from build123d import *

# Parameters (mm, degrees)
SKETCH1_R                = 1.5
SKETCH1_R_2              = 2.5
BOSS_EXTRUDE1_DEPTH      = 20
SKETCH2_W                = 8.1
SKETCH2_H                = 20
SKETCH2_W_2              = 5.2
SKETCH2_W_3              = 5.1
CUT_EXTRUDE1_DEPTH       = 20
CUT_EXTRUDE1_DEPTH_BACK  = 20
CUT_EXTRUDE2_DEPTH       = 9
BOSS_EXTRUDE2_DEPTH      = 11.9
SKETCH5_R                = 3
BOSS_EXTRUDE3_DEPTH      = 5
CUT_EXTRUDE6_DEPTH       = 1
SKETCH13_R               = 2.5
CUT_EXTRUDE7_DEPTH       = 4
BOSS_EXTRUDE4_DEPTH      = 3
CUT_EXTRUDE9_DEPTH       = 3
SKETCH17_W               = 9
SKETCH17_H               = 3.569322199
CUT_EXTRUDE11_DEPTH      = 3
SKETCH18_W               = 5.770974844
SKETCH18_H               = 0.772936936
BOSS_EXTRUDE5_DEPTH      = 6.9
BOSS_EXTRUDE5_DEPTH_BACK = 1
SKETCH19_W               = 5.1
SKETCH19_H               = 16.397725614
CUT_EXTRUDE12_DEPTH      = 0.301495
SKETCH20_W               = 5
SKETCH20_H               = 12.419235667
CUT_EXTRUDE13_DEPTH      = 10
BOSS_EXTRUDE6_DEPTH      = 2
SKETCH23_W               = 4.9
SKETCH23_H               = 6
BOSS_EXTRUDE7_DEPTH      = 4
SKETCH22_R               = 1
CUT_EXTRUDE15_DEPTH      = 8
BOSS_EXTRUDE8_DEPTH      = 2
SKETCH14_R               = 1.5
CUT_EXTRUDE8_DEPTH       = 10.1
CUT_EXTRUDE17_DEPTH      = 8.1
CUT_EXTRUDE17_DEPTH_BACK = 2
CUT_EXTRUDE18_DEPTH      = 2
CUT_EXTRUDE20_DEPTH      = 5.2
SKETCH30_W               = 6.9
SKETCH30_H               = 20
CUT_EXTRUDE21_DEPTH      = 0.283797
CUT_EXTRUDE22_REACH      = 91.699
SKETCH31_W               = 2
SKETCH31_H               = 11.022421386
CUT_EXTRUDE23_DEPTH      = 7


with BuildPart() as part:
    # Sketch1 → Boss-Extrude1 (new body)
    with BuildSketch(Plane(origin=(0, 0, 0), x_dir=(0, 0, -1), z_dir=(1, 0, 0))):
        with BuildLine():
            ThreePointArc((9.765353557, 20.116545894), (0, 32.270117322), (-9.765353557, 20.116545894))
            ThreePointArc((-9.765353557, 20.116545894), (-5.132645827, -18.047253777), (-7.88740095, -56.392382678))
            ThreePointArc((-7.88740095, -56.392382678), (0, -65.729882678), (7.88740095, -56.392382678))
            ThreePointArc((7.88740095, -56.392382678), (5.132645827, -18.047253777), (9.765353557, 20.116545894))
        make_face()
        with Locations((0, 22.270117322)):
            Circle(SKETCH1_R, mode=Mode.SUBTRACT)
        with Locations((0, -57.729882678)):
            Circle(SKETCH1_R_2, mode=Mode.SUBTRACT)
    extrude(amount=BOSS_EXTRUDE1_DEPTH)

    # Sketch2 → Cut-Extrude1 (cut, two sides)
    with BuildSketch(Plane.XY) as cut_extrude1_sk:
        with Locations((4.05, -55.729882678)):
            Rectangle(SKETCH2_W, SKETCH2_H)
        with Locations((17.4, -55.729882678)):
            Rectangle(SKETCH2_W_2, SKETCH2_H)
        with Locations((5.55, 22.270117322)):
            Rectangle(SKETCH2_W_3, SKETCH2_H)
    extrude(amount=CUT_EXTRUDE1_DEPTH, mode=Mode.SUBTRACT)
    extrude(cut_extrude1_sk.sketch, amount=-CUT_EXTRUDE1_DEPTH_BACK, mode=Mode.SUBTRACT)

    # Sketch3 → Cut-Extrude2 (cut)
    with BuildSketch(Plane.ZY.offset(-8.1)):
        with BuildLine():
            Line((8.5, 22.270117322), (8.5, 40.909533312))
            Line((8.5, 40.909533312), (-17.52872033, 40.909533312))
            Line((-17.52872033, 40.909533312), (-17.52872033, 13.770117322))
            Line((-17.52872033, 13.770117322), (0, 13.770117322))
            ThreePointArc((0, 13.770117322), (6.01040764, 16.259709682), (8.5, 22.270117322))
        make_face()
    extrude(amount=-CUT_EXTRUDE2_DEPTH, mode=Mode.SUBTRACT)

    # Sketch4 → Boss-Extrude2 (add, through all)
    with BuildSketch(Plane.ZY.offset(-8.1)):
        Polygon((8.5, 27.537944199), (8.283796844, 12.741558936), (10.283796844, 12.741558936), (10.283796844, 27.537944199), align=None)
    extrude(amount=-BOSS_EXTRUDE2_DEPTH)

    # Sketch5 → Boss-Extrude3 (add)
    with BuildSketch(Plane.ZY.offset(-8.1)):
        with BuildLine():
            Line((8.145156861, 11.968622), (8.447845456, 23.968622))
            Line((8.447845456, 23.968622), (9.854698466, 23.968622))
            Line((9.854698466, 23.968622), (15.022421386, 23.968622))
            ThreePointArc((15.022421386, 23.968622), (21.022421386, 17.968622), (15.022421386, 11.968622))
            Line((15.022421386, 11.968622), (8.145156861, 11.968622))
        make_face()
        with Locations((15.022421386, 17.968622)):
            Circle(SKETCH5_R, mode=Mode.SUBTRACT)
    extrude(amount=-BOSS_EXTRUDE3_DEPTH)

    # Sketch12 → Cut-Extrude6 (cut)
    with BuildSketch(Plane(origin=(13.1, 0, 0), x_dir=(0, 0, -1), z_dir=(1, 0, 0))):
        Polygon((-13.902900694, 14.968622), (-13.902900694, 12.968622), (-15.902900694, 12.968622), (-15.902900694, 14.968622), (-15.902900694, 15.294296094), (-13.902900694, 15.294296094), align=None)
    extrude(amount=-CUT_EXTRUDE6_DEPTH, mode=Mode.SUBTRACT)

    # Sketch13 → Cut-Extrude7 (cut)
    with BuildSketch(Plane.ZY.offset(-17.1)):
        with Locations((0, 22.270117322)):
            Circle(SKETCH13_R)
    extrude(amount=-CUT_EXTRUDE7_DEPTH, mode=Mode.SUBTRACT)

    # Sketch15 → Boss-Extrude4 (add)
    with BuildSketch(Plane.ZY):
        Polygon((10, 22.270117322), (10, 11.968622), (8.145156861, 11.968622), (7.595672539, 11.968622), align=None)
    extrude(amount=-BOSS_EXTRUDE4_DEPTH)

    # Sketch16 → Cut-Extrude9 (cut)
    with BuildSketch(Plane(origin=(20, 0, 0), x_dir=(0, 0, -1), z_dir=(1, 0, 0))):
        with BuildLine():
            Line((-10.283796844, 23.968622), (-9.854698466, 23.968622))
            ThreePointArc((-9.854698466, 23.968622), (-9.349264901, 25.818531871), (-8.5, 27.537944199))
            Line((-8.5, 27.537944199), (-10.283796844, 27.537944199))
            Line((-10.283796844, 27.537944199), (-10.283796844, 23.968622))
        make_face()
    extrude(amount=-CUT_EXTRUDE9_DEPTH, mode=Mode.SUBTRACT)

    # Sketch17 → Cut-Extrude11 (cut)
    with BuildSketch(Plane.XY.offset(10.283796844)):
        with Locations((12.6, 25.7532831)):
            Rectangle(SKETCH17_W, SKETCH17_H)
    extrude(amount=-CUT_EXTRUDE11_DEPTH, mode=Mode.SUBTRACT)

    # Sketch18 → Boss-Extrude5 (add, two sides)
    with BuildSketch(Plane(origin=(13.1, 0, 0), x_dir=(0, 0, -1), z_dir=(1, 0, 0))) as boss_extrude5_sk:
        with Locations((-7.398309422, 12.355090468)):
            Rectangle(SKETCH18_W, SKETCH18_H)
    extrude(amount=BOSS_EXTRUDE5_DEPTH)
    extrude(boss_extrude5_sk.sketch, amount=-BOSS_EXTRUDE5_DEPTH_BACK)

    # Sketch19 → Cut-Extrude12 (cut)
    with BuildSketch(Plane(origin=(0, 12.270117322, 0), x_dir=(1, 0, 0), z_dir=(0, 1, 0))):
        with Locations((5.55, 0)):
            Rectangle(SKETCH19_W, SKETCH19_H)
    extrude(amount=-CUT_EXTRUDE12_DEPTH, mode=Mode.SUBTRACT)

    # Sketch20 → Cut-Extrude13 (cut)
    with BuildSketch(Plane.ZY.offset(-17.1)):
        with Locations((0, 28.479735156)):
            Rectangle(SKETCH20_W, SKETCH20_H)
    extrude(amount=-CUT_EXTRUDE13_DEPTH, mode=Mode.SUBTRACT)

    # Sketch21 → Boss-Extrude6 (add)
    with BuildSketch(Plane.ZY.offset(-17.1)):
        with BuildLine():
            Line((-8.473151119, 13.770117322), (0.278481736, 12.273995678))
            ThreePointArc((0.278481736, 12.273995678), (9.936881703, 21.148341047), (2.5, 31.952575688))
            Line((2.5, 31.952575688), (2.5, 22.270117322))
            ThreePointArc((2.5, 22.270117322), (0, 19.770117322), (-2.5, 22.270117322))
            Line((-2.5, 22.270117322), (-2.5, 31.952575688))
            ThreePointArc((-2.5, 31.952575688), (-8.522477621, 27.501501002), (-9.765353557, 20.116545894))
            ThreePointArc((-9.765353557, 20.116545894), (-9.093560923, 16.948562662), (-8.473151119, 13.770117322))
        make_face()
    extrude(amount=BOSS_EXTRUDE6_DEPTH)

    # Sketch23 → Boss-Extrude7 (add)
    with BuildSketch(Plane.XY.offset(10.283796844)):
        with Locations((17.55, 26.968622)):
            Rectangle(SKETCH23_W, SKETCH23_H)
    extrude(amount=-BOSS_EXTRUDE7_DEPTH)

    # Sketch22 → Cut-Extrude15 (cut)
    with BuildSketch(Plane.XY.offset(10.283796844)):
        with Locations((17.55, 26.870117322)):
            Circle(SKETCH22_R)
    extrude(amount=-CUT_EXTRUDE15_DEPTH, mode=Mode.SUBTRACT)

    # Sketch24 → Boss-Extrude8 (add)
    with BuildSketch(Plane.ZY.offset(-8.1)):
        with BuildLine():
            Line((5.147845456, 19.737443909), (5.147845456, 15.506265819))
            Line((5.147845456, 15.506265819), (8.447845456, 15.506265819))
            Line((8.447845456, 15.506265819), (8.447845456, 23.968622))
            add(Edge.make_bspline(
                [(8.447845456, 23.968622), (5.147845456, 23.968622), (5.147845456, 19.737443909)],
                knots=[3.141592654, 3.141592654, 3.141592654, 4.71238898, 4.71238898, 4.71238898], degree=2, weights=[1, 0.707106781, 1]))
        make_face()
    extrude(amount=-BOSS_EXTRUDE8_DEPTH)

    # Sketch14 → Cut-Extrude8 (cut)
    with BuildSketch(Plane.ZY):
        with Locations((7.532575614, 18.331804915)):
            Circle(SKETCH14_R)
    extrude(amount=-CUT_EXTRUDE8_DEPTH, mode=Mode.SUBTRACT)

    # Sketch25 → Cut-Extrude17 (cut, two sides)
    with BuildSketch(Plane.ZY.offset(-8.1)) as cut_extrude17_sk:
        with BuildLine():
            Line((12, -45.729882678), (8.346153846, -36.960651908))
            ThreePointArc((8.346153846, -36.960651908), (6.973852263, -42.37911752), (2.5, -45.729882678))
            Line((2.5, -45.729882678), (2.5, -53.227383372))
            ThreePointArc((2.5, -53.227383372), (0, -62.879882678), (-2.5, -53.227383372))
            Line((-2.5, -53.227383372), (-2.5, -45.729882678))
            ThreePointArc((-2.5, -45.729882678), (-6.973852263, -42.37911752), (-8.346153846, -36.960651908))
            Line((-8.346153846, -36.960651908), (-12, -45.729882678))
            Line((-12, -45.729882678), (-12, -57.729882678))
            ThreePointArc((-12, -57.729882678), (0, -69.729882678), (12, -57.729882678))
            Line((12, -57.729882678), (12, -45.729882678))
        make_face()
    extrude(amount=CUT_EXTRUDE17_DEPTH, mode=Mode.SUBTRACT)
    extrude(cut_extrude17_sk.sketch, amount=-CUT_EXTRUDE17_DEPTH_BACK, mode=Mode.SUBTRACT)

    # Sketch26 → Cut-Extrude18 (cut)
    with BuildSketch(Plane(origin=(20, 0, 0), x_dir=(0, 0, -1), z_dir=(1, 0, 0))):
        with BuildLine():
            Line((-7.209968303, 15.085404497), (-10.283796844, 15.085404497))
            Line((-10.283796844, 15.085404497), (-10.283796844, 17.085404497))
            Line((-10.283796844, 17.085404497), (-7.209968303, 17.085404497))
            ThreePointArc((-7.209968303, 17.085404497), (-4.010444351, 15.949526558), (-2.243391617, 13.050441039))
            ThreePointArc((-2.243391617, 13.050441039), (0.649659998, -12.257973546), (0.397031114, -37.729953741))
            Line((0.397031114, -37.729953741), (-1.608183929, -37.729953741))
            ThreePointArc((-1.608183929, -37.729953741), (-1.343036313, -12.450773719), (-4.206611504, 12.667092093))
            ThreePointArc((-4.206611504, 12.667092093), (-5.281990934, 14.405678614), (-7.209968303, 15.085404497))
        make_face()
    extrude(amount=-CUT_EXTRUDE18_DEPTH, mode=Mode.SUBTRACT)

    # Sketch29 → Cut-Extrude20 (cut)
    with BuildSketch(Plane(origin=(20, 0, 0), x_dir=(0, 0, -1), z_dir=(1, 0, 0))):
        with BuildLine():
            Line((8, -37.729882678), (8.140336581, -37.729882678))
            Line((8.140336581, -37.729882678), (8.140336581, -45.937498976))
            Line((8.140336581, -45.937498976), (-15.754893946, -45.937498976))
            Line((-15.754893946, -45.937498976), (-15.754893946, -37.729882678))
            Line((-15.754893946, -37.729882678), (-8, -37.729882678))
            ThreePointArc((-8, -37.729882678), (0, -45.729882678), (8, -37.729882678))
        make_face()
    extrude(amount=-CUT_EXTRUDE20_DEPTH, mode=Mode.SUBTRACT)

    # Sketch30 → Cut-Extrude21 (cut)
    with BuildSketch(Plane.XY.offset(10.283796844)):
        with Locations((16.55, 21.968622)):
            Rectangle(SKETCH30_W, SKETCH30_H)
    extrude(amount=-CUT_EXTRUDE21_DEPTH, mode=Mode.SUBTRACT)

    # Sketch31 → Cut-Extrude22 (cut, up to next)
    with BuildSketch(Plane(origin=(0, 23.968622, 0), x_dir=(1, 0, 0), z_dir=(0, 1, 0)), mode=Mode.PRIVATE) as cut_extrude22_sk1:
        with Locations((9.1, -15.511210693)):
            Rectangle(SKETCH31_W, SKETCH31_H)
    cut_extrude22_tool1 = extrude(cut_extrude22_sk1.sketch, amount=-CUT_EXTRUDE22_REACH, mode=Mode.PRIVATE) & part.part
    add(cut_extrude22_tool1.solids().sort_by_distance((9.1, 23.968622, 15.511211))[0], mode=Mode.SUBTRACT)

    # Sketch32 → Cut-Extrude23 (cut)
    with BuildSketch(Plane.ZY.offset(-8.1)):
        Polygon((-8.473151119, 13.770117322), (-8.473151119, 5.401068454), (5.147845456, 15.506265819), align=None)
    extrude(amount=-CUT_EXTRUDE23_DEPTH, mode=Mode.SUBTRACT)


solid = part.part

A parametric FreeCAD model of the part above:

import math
import FreeCAD as App
import Part
import Sketcher

V = App.Vector
Q = App.Units.Quantity

doc = App.newDocument("Part")
body = doc.addObject("PartDesign::Body", "Body")

# Sketch on YZ plane
sketch1 = body.newObject("Sketcher::SketchObject", "Sketch")
sketch1.AttachmentSupport = (doc.getObject("YZ_Plane"), [""])
sketch1.MapMode = "FlatFace"
sketch1.addGeometry([
    Part.ArcOfCircle(Part.Circle(V(22.3, 0, 0), V(0, 0, 1), 10), math.radians(-102), math.radians(102)),  # 0
    Part.ArcOfCircle(Part.Circle(V(-23, 205.1, 0), V(0, 0, 1), 200), math.radians(-100), math.radians(-78)),  # 1
    Part.ArcOfCircle(Part.Circle(V(-57.7, 0, 0), V(0, 0, 1), 8), math.radians(80), math.radians(280)),  # 2
    Part.ArcOfCircle(Part.Circle(V(-23, -205.1, 0), V(0, 0, 1), 200), math.radians(78), math.radians(100)),  # 3
    Part.Circle(V(-57.7, 0, 0), V(0, 0, 1), 2.5),  # 4
    Part.Circle(V(22.3, 0, 0), V(0, 0, 1), 1.5),  # 5
], False)
sketch1.addConstraint([
    Sketcher.Constraint("Tangent", 0, 2, 1, 2),
    Sketcher.Constraint("Tangent", 1, 1, 2, 1),
    Sketcher.Constraint("Tangent", 2, 2, 3, 2),
    Sketcher.Constraint("Tangent", 3, 1, 0, 1),
    Sketcher.Constraint("Coincident", 4, 3, 2, 3),
    Sketcher.Constraint("Coincident", 5, 3, 0, 3),
    Sketcher.Constraint("Equal", 1, 3),
    Sketcher.Constraint("Symmetric", 1, 3, 3, 3, -1),
    Sketcher.Constraint("Diameter", 4, Q("5 mm")),
    Sketcher.Constraint("Diameter", 5, Q("3 mm")),
    Sketcher.Constraint("Radius", 0, Q("10 mm")),
    Sketcher.Constraint("Radius", 1, Q("200 mm")),
    Sketcher.Constraint("Radius", 2, Q("8 mm")),
    Sketcher.Constraint("DistanceX", 2, 3, 0, 3, Q("80 mm")),
    Sketcher.Constraint("DistanceX", -1, 1, 0, 3, Q("22.270117 mm")),
])
pad1 = body.newObject("PartDesign::Pad", "Pad")
pad1.Profile = sketch1
pad1.Length = 20

# Sketch on XY plane
sketch2 = body.newObject("Sketcher::SketchObject", "Sketch001")
sketch2.AttachmentSupport = (doc.getObject("XY_Plane"), [""])
sketch2.MapMode = "FlatFace"
sketch2.addGeometry([
    Part.LineSegment(V(0, -46, 0), V(0, -66, 0)),  # 0
    Part.LineSegment(V(0, -66, 0), V(8, -66, 0)),  # 1
    Part.LineSegment(V(8, -66, 0), V(8, -46, 0)),  # 2
    Part.LineSegment(V(8, -46, 0), V(0, -46, 0)),  # 3
    Part.LineSegment(V(15, -46, 0), V(15, -66, 0)),  # 4
    Part.LineSegment(V(15, -66, 0), V(20, -66, 0)),  # 5
    Part.LineSegment(V(20, -66, 0), V(20, -46, 0)),  # 6
    Part.LineSegment(V(20, -46, 0), V(15, -46, 0)),  # 7
    Part.LineSegment(V(3, 32, 0), V(3, 12, 0)),  # 8
    Part.LineSegment(V(3, 12, 0), V(8, 12, 0)),  # 9
    Part.LineSegment(V(8, 12, 0), V(8, 32, 0)),  # 10
    Part.LineSegment(V(8, 32, 0), V(3, 32, 0)),  # 11
], False)
sketch2.addConstraint([
    Sketcher.Constraint("Coincident", 0, 2, 1, 1),
    Sketcher.Constraint("Coincident", 1, 2, 2, 1),
    Sketcher.Constraint("Coincident", 2, 2, 3, 1),
    Sketcher.Constraint("Coincident", 3, 2, 0, 1),
    Sketcher.Constraint("Coincident", 4, 2, 5, 1),
    Sketcher.Constraint("Coincident", 5, 2, 6, 1),
    Sketcher.Constraint("Coincident", 6, 2, 7, 1),
    Sketcher.Constraint("Coincident", 7, 2, 4, 1),
    Sketcher.Constraint("Coincident", 8, 2, 9, 1),
    Sketcher.Constraint("Coincident", 9, 2, 10, 1),
    Sketcher.Constraint("Coincident", 10, 2, 11, 1),
    Sketcher.Constraint("Coincident", 11, 2, 8, 1),
    Sketcher.Constraint("Vertical", 0),
    Sketcher.Constraint("Horizontal", 1),
    Sketcher.Constraint("Vertical", 2),
    Sketcher.Constraint("Horizontal", 3),
    Sketcher.Constraint("Vertical", 4),
    Sketcher.Constraint("Horizontal", 5),
    Sketcher.Constraint("Vertical", 6),
    Sketcher.Constraint("Horizontal", 7),
    Sketcher.Constraint("Vertical", 8),
    Sketcher.Constraint("Horizontal", 9),
    Sketcher.Constraint("Vertical", 10),
    Sketcher.Constraint("Horizontal", 11),
    Sketcher.Constraint("PointOnObject", 0, 2, -2),
    Sketcher.Constraint("Horizontal", 1, 2, 4, 2),
    Sketcher.Constraint("Horizontal", 3, 2, 6, 2),
    Sketcher.Constraint("Vertical", 2, 2, 9, 2),
    Sketcher.Constraint("Equal", 6, 8),
    Sketcher.Constraint("DistanceY", 0, 2, 0, 1, Q("20 mm")),
    Sketcher.Constraint("DistanceX", 1, 1, 1, 2, Q("8.1 mm")),
    Sketcher.Constraint("DistanceX", 5, 1, 5, 2, Q("5.2 mm")),
    Sketcher.Constraint("DistanceX", 9, 1, 9, 2, Q("5.1 mm")),
    Sketcher.Constraint("DistanceX", -1, 1, 5, 2, Q("20 mm")),
    Sketcher.Constraint("DistanceY", 3, 2, 8, 2, Q("58 mm")),
    Sketcher.Constraint("DistanceY", 0, 2, -1, 1, Q("65.729883 mm")),
])
pocket1 = body.newObject("PartDesign::Pocket", "Pocket")
pocket1.Profile = sketch2
pocket1.Type = "ThroughAll"
pocket1.Midplane = True

# Sketch on YZ plane
sketch3 = body.newObject("Sketcher::SketchObject", "Sketch002")
sketch3.AttachmentSupport = (doc.getObject("YZ_Plane"), [""])
sketch3.MapMode = "FlatFace"
sketch3.AttachmentOffset = App.Placement(V(0, 0, 8.1), App.Rotation())
sketch3.addGeometry([
    Part.LineSegment(V(22, 8, 0), V(41, 8, 0)),  # 0
    Part.LineSegment(V(41, 8, 0), V(41, -18, 0)),  # 1
    Part.LineSegment(V(41, -18, 0), V(14, -18, 0)),  # 2
    Part.LineSegment(V(14, -18, 0), V(14, 0, 0)),  # 3
    Part.ArcOfCircle(Part.Circle(V(22, 0, 0), V(0, 0, 1), 8), math.radians(90), math.radians(180)),  # 4
], False)
sketch3.addConstraint([
    Sketcher.Constraint("Coincident", 0, 2, 1, 1),
    Sketcher.Constraint("Coincident", 1, 2, 2, 1),
    Sketcher.Constraint("Coincident", 2, 2, 3, 1),
    Sketcher.Constraint("Tangent", 3, 2, 4, 2),
    Sketcher.Constraint("Tangent", 4, 1, 0, 1),
    Sketcher.Constraint("Horizontal", 0),
    Sketcher.Constraint("Vertical", 1),
    Sketcher.Constraint("Horizontal", 2),
    Sketcher.Constraint("Vertical", 3),
    Sketcher.Constraint("PointOnObject", 4, 3, -1),
    Sketcher.Constraint("Radius", 4, Q("8.5 mm")),
    Sketcher.Constraint("DistanceY", 1, 2, 1, 1, Q("26.02872 mm")),
    Sketcher.Constraint("DistanceX", 0, 1, 0, 2, Q("18.639416 mm")),
    Sketcher.Constraint("DistanceX", -1, 1, 4, 3, Q("22.270117 mm")),
])
pocket2 = body.newObject("PartDesign::Pocket", "Pocket001")
pocket2.Profile = sketch3
pocket2.Length = 9
pocket2.Reversed = True

# Sketch on YZ plane
sketch4 = body.newObject("Sketcher::SketchObject", "Sketch003")
sketch4.AttachmentSupport = (doc.getObject("YZ_Plane"), [""])
sketch4.MapMode = "FlatFace"
sketch4.AttachmentOffset = App.Placement(V(0, 0, 8.1), App.Rotation())
sketch4.addGeometry([
    Part.LineSegment(V(27.5, 8.5, 0), V(12.7, 8.3, 0)),
    Part.LineSegment(V(12.7, 8.3, 0), V(12.7, 10.3, 0)),
    Part.LineSegment(V(12.7, 10.3, 0), V(27.5, 10.3, 0)),
    Part.LineSegment(V(27.5, 10.3, 0), V(27.5, 8.5, 0)),
], False)
sketch4.addConstraint([
    Sketcher.Constraint("Coincident", 0, 2, 1, 1),
    Sketcher.Constraint("Coincident", 1, 2, 2, 1),
    Sketcher.Constraint("Coincident", 2, 2, 3, 1),
    Sketcher.Constraint("Coincident", 3, 2, 0, 1),
    Sketcher.Constraint("Vertical", 1),
    Sketcher.Constraint("Horizontal", 2),
    Sketcher.Constraint("Vertical", 3),
    Sketcher.Constraint("DistanceY", 1, 1, 1, 2, Q("2 mm")),
    Sketcher.Constraint("DistanceY", -1, 1, 3, 2, Q("8.5 mm")),
    Sketcher.Constraint("DistanceX", 2, 1, 2, 2, Q("14.796385 mm")),
    Sketcher.Constraint("DistanceY", 3, 2, 3, 1, Q("1.783797 mm")),
    Sketcher.Constraint("DistanceX", -1, 1, 0, 2, Q("12.741559 mm")),
])
pad2 = body.newObject("PartDesign::Pad", "Pad001")
pad2.Profile = sketch4
pad2.Type = "UpToLast"

# Sketch on YZ plane
sketch5 = body.newObject("Sketcher::SketchObject", "Sketch004")
sketch5.AttachmentSupport = (doc.getObject("YZ_Plane"), [""])
sketch5.MapMode = "FlatFace"
sketch5.AttachmentOffset = App.Placement(V(0, 0, 8.1), App.Rotation())
sketch5.addGeometry([
    Part.LineSegment(V(24, 8.4, 0), V(12, 8.1, 0)),  # 0
    Part.LineSegment(V(12, 8.1, 0), V(12, 15, 0)),  # 1
    Part.ArcOfCircle(Part.Circle(V(18, 15, 0), V(0, 0, 1), 6), math.radians(0), math.radians(180)),  # 2
    Part.LineSegment(V(24, 15, 0), V(24, 8.4, 0)),  # 3
    Part.Circle(V(18, 15, 0), V(0, 0, 1), 3),  # 4
], False)
sketch5.addConstraint([
    Sketcher.Constraint("Coincident", 0, 2, 1, 1),
    Sketcher.Constraint("Tangent", 1, 2, 2, 2),
    Sketcher.Constraint("Tangent", 2, 1, 3, 1),
    Sketcher.Constraint("Coincident", 3, 2, 0, 1),
    Sketcher.Constraint("Vertical", 1),
    Sketcher.Constraint("Vertical", 3),
    Sketcher.Constraint("Coincident", 4, 3, 2, 3),
    Sketcher.Constraint("Diameter", 4, Q("6 mm")),
    Sketcher.Constraint("Radius", 2, Q("6 mm")),
    Sketcher.Constraint("DistanceY", 1, 1, 1, 2, Q("6.877265 mm")),
    Sketcher.Constraint("DistanceY", 3, 2, 3, 1, Q("6.574576 mm")),
    Sketcher.Constraint("DistanceX", -1, 1, 2, 3, Q("17.968622 mm")),
    Sketcher.Constraint("DistanceY", -1, 1, 2, 3, Q("15.022421 mm")),
])
pad3 = body.newObject("PartDesign::Pad", "Pad002")
pad3.Profile = sketch5
pad3.Length = 5

# Sketch on YZ plane
sketch6 = body.newObject("Sketcher::SketchObject", "Sketch005")
sketch6.AttachmentSupport = (doc.getObject("YZ_Plane"), [""])
sketch6.MapMode = "FlatFace"
sketch6.AttachmentOffset = App.Placement(V(0, 0, 13.1), App.Rotation())
sketch6.addGeometry([
    Part.LineSegment(V(13, 13.9, 0), V(15.3, 13.9, 0)),
    Part.LineSegment(V(15.3, 13.9, 0), V(15.3, 15.9, 0)),
    Part.LineSegment(V(15.3, 15.9, 0), V(13, 15.9, 0)),
    Part.LineSegment(V(13, 15.9, 0), V(13, 13.9, 0)),
], False)
sketch6.addConstraint([
    Sketcher.Constraint("Coincident", 0, 2, 1, 1),
    Sketcher.Constraint("Coincident", 1, 2, 2, 1),
    Sketcher.Constraint("Coincident", 2, 2, 3, 1),
    Sketcher.Constraint("Coincident", 3, 2, 0, 1),
    Sketcher.Constraint("Horizontal", 0),
    Sketcher.Constraint("Vertical", 1),
    Sketcher.Constraint("Horizontal", 2),
    Sketcher.Constraint("Vertical", 3),
    Sketcher.Constraint("DistanceY", 1, 1, 1, 2, Q("2 mm")),
    Sketcher.Constraint("DistanceY", -1, 1, 0, 2, Q("13.902901 mm")),
    Sketcher.Constraint("DistanceX", 0, 1, 0, 2, Q("2.325674 mm")),
    Sketcher.Constraint("DistanceX", -1, 1, 0, 2, Q("15.294296 mm")),
])
pocket3 = body.newObject("PartDesign::Pocket", "Pocket002")
pocket3.Profile = sketch6
pocket3.Length = 1

# Sketch on YZ plane
sketch7 = body.newObject("Sketcher::SketchObject", "Sketch006")
sketch7.AttachmentSupport = (doc.getObject("YZ_Plane"), [""])
sketch7.MapMode = "FlatFace"
sketch7.AttachmentOffset = App.Placement(V(0, 0, 17.1), App.Rotation())
sketch7.addGeometry(Part.Circle(V(22.3, 0, 0), V(0, 0, 1), 2.5), False)
sketch7.addConstraint([
    Sketcher.Constraint("PointOnObject", 0, 3, -1),
    Sketcher.Constraint("Diameter", 0, Q("5 mm")),
    Sketcher.Constraint("DistanceX", -1, 1, 0, 3, Q("22.270117 mm")),
])
pocket4 = body.newObject("PartDesign::Pocket", "Pocket003")
pocket4.Profile = sketch7
pocket4.Length = 4
pocket4.Reversed = True

# Sketch on YZ plane
sketch8 = body.newObject("Sketcher::SketchObject", "Sketch007")
sketch8.AttachmentSupport = (doc.getObject("YZ_Plane"), [""])
sketch8.MapMode = "FlatFace"
sketch8.addGeometry([
    Part.LineSegment(V(12, 10, 0), V(22.3, 10, 0)),
    Part.LineSegment(V(22.3, 10, 0), V(12, 7.6, 0)),
    Part.LineSegment(V(12, 7.6, 0), V(12, 10, 0)),
], False)
sketch8.addConstraint([
    Sketcher.Constraint("Coincident", 0, 2, 1, 1),
    Sketcher.Constraint("Coincident", 1, 2, 2, 1),
    Sketcher.Constraint("Coincident", 2, 2, 0, 1),
    Sketcher.Constraint("Horizontal", 0),
    Sketcher.Constraint("Vertical", 2),
    Sketcher.Constraint("DistanceY", -1, 1, 0, 2, Q("10 mm")),
    Sketcher.Constraint("DistanceX", 0, 1, 0, 2, Q("10.301495 mm")),
    Sketcher.Constraint("DistanceY", 2, 1, 2, 2, Q("2.404327 mm")),
    Sketcher.Constraint("DistanceX", -1, 1, 0, 2, Q("22.270117 mm")),
])
pad4 = body.newObject("PartDesign::Pad", "Pad003")
pad4.Profile = sketch8
pad4.Length = 3

# Sketch on YZ plane
sketch9 = body.newObject("Sketcher::SketchObject", "Sketch008")
sketch9.AttachmentSupport = (doc.getObject("YZ_Plane"), [""])
sketch9.MapMode = "FlatFace"
sketch9.AttachmentOffset = App.Placement(V(0, 0, 20), App.Rotation())
sketch9.addGeometry([
    Part.LineSegment(V(23.97, 10.28, 0), V(23.97, 9.85, 0)),
    Part.ArcOfCircle(Part.Circle(V(22.27, 0, 0), V(0, 0, 1), 10), math.radians(58), math.radians(80)),
    Part.LineSegment(V(27.54, 8.5, 0), V(27.54, 10.28, 0)),
    Part.LineSegment(V(27.54, 10.28, 0), V(23.97, 10.28, 0)),
], False)
sketch9.addConstraint([
    Sketcher.Constraint("Coincident", 0, 2, 1, 2),
    Sketcher.Constraint("Coincident", 1, 1, 2, 1),
    Sketcher.Constraint("Coincident", 2, 2, 3, 1),
    Sketcher.Constraint("Coincident", 3, 2, 0, 1),
    Sketcher.Constraint("Vertical", 0),
    Sketcher.Constraint("Vertical", 2),
    Sketcher.Constraint("Horizontal", 3),
    Sketcher.Constraint("PointOnObject", 1, 3, -1),
    Sketcher.Constraint("Radius", 1, Q("10 mm")),
    Sketcher.Constraint("DistanceY", -1, 1, 1, 1, Q("8.5 mm")),
    Sketcher.Constraint("DistanceY", 0, 2, 0, 1, Q("0.429098 mm")),
    Sketcher.Constraint("DistanceY", -1, 1, 0, 2, Q("9.854698 mm")),
    Sketcher.Constraint("DistanceX", -1, 1, 0, 2, Q("23.968622 mm")),
])
pocket5 = body.newObject("PartDesign::Pocket", "Pocket004")
pocket5.Profile = sketch9
pocket5.Length = 3

# Sketch on XY plane
sketch10 = body.newObject("Sketcher::SketchObject", "Sketch009")
sketch10.AttachmentSupport = (doc.getObject("XY_Plane"), [""])
sketch10.MapMode = "FlatFace"
sketch10.AttachmentOffset = App.Placement(V(0, 0, 10.283797), App.Rotation())
sketch10.addGeometry([
    Part.LineSegment(V(8.1, 27.5, 0), V(8.1, 24, 0)),
    Part.LineSegment(V(8.1, 24, 0), V(17.1, 24, 0)),
    Part.LineSegment(V(17.1, 24, 0), V(17.1, 27.5, 0)),
    Part.LineSegment(V(17.1, 27.5, 0), V(8.1, 27.5, 0)),
], False)
sketch10.addConstraint([
    Sketcher.Constraint("Coincident", 0, 2, 1, 1),
    Sketcher.Constraint("Coincident", 1, 2, 2, 1),
    Sketcher.Constraint("Coincident", 2, 2, 3, 1),
    Sketcher.Constraint("Coincident", 3, 2, 0, 1),
    Sketcher.Constraint("Vertical", 0),
    Sketcher.Constraint("Horizontal", 1),
    Sketcher.Constraint("Vertical", 2),
    Sketcher.Constraint("Horizontal", 3),
    Sketcher.Constraint("DistanceX", 1, 1, 1, 2, Q("9 mm")),
    Sketcher.Constraint("DistanceX", -1, 1, 0, 2, Q("8.1 mm")),
    Sketcher.Constraint("DistanceY", 0, 2, 0, 1, Q("3.569322 mm")),
    Sketcher.Constraint("DistanceY", -1, 1, 0, 2, Q("23.968622 mm")),
])
pocket6 = body.newObject("PartDesign::Pocket", "Pocket005")
pocket6.Profile = sketch10
pocket6.Length = 3

# Sketch on YZ plane
sketch11 = body.newObject("Sketcher::SketchObject", "Sketch010")
sketch11.AttachmentSupport = (doc.getObject("YZ_Plane"), [""])
sketch11.MapMode = "FlatFace"
sketch11.AttachmentOffset = App.Placement(V(0, 0, 13.1), App.Rotation())
sketch11.addGeometry([
    Part.LineSegment(V(12.7, 10.3, 0), V(12, 10.3, 0)),
    Part.LineSegment(V(12, 10.3, 0), V(12, 4.5, 0)),
    Part.LineSegment(V(12, 4.5, 0), V(12.7, 4.5, 0)),
    Part.LineSegment(V(12.7, 4.5, 0), V(12.7, 10.3, 0)),
], False)
sketch11.addConstraint([
    Sketcher.Constraint("Coincident", 0, 2, 1, 1),
    Sketcher.Constraint("Coincident", 1, 2, 2, 1),
    Sketcher.Constraint("Coincident", 2, 2, 3, 1),
    Sketcher.Constraint("Coincident", 3, 2, 0, 1),
    Sketcher.Constraint("Horizontal", 0),
    Sketcher.Constraint("Vertical", 1),
    Sketcher.Constraint("Horizontal", 2),
    Sketcher.Constraint("Vertical", 3),
    Sketcher.Constraint("DistanceX", 0, 2, 0, 1, Q("0.772937 mm")),
    Sketcher.Constraint("DistanceY", 1, 2, 1, 1, Q("5.770975 mm")),
    Sketcher.Constraint("DistanceX", -1, 1, 2, 2, Q("12.741559 mm")),
    Sketcher.Constraint("DistanceY", -1, 1, 0, 2, Q("10.283797 mm")),
])
pad5 = body.newObject("PartDesign::Pad", "Pad004")
pad5.Profile = sketch11
pad5.Type = "TwoLengths"
pad5.Length = 6.9
pad5.Length2 = 1

# Sketch on XZ plane
sketch12 = body.newObject("Sketcher::SketchObject", "Sketch011")
sketch12.AttachmentSupport = (doc.getObject("XZ_Plane"), [""])
sketch12.MapMode = "FlatFace"
sketch12.AttachmentOffset = App.Placement(V(0, 0, -12.270117), App.Rotation())
sketch12.addGeometry([
    Part.LineSegment(V(3, -8, 0), V(3, 8, 0)),
    Part.LineSegment(V(3, 8, 0), V(8, 8, 0)),
    Part.LineSegment(V(8, 8, 0), V(8, -8, 0)),
    Part.LineSegment(V(8, -8, 0), V(3, -8, 0)),
], False)
sketch12.addConstraint([
    Sketcher.Constraint("Coincident", 0, 2, 1, 1),
    Sketcher.Constraint("Coincident", 1, 2, 2, 1),
    Sketcher.Constraint("Coincident", 2, 2, 3, 1),
    Sketcher.Constraint("Coincident", 3, 2, 0, 1),
    Sketcher.Constraint("Vertical", 0),
    Sketcher.Constraint("Horizontal", 1),
    Sketcher.Constraint("Vertical", 2),
    Sketcher.Constraint("Horizontal", 3),
    Sketcher.Constraint("DistanceX", 1, 1, 1, 2, Q("5.1 mm")),
    Sketcher.Constraint("DistanceX", -1, 1, 0, 2, Q("3 mm")),
    Sketcher.Constraint("DistanceY", 0, 1, 0, 2, Q("16.397726 mm")),
    Sketcher.Constraint("DistanceY", -1, 1, 0, 2, Q("8.198863 mm")),
])
pocket7 = body.newObject("PartDesign::Pocket", "Pocket006")
pocket7.Profile = sketch12
pocket7.Length = 0.301495
pocket7.Reversed = True

# Sketch on YZ plane
sketch13 = body.newObject("Sketcher::SketchObject", "Sketch012")
sketch13.AttachmentSupport = (doc.getObject("YZ_Plane"), [""])
sketch13.MapMode = "FlatFace"
sketch13.AttachmentOffset = App.Placement(V(0, 0, 17.1), App.Rotation())
sketch13.addGeometry([
    Part.LineSegment(V(35, -2, 0), V(22, -2, 0)),
    Part.LineSegment(V(22, -2, 0), V(22, 2, 0)),
    Part.LineSegment(V(22, 2, 0), V(35, 2, 0)),
    Part.LineSegment(V(35, 2, 0), V(35, -2, 0)),
], False)
sketch13.addConstraint([
    Sketcher.Constraint("Coincident", 0, 2, 1, 1),
    Sketcher.Constraint("Coincident", 1, 2, 2, 1),
    Sketcher.Constraint("Coincident", 2, 2, 3, 1),
    Sketcher.Constraint("Coincident", 3, 2, 0, 1),
    Sketcher.Constraint("Horizontal", 0),
    Sketcher.Constraint("Vertical", 1),
    Sketcher.Constraint("Horizontal", 2),
    Sketcher.Constraint("Vertical", 3),
    Sketcher.Constraint("DistanceY", 1, 1, 1, 2, Q("5 mm")),
    Sketcher.Constraint("DistanceY", 0, 2, -1, 1, Q("2.5 mm")),
    Sketcher.Constraint("DistanceX", 0, 2, 0, 1, Q("12.419236 mm")),
    Sketcher.Constraint("DistanceX", -1, 1, 0, 2, Q("22.270117 mm")),
])
pocket8 = body.newObject("PartDesign::Pocket", "Pocket007")
pocket8.Profile = sketch13
pocket8.Length = 10
pocket8.Reversed = True

# Sketch on YZ plane
sketch14 = body.newObject("Sketcher::SketchObject", "Sketch013")
sketch14.AttachmentSupport = (doc.getObject("YZ_Plane"), [""])
sketch14.MapMode = "FlatFace"
sketch14.AttachmentOffset = App.Placement(V(0, 0, 17.1), App.Rotation())
sketch14.addGeometry([
    Part.LineSegment(V(13.8, -8.5, 0), V(12.3, 0.3, 0)),  # 0
    Part.ArcOfCircle(Part.Circle(V(22.3, 0, 0), V(0, 0, 1), 10), math.radians(14), math.radians(178)),  # 1
    Part.LineSegment(V(32, 2.5, 0), V(22.3, 2.5, 0)),  # 2
    Part.ArcOfCircle(Part.Circle(V(22.3, 0, 0), V(0, 0, 1), 2.5), math.radians(90), math.radians(270)),  # 3
    Part.LineSegment(V(22.3, -2.5, 0), V(32, -2.5, 0)),  # 4
    Part.ArcOfCircle(Part.Circle(V(22.3, 0, 0), V(0, 0, 1), 10), math.radians(-102), math.radians(-14)),  # 5
    Part.ArcOfCircle(Part.Circle(V(-23, -205.1, 0), V(0, 0, 1), 200), math.radians(77.56), math.radians(79.42)),  # 6
], False)
sketch14.addConstraint([
    Sketcher.Constraint("Coincident", 0, 2, 1, 2),
    Sketcher.Constraint("Coincident", 1, 1, 2, 1),
    Sketcher.Constraint("Tangent", 2, 2, 3, 1),
    Sketcher.Constraint("Tangent", 3, 2, 4, 1),
    Sketcher.Constraint("Coincident", 4, 2, 5, 2),
    Sketcher.Constraint("Tangent", 5, 1, 6, 1),
    Sketcher.Constraint("Coincident", 6, 2, 0, 1),
    Sketcher.Constraint("Horizontal", 2),
    Sketcher.Constraint("Horizontal", 4),
    Sketcher.Constraint("Coincident", 3, 3, 1, 3),
    Sketcher.Constraint("Coincident", 5, 3, 1, 3),
    Sketcher.Constraint("Equal", 1, 5),
    Sketcher.Constraint("PointOnObject", 1, 3, -1),
    Sketcher.Constraint("Radius", 1, Q("10 mm")),
    Sketcher.Constraint("Radius", 3, Q("2.5 mm")),
    Sketcher.Constraint("DistanceX", 6, 2, 3, 2, Q("8.5 mm")),
    Sketcher.Constraint("Radius", 6, Q("200.000006 mm")),
    Sketcher.Constraint("DistanceX", 6, 3, 1, 3, Q("45.225001 mm")),
    Sketcher.Constraint("DistanceY", -1, 1, 0, 2, Q("0.278482 mm")),
    Sketcher.Constraint("DistanceX", -1, 1, 1, 3, Q("22.270117 mm")),
])
pad6 = body.newObject("PartDesign::Pad", "Pad005")
pad6.Profile = sketch14
pad6.Length = 2
pad6.Reversed = True

# Sketch on XY plane
sketch15 = body.newObject("Sketcher::SketchObject", "Sketch014")
sketch15.AttachmentSupport = (doc.getObject("XY_Plane"), [""])
sketch15.MapMode = "FlatFace"
sketch15.AttachmentOffset = App.Placement(V(0, 0, 10.283797), App.Rotation())
sketch15.addGeometry([
    Part.LineSegment(V(15.1, 30, 0), V(15.1, 24, 0)),
    Part.LineSegment(V(15.1, 24, 0), V(20, 24, 0)),
    Part.LineSegment(V(20, 24, 0), V(20, 30, 0)),
    Part.LineSegment(V(20, 30, 0), V(15.1, 30, 0)),
], False)
sketch15.addConstraint([
    Sketcher.Constraint("Coincident", 0, 2, 1, 1),
    Sketcher.Constraint("Coincident", 1, 2, 2, 1),
    Sketcher.Constraint("Coincident", 2, 2, 3, 1),
    Sketcher.Constraint("Coincident", 3, 2, 0, 1),
    Sketcher.Constraint("Vertical", 0),
    Sketcher.Constraint("Horizontal", 1),
    Sketcher.Constraint("Vertical", 2),
    Sketcher.Constraint("Horizontal", 3),
    Sketcher.Constraint("DistanceY", 0, 2, 0, 1, Q("6 mm")),
    Sketcher.Constraint("DistanceX", 1, 1, 1, 2, Q("4.9 mm")),
    Sketcher.Constraint("DistanceX", -1, 1, 1, 2, Q("20 mm")),
    Sketcher.Constraint("DistanceY", -1, 1, 0, 2, Q("23.968622 mm")),
])
pad7 = body.newObject("PartDesign::Pad", "Pad006")
pad7.Profile = sketch15
pad7.Length = 4
pad7.Reversed = True

# Sketch on XY plane
sketch16 = body.newObject("Sketcher::SketchObject", "Sketch015")
sketch16.AttachmentSupport = (doc.getObject("XY_Plane"), [""])
sketch16.MapMode = "FlatFace"
sketch16.AttachmentOffset = App.Placement(V(0, 0, 10.283797), App.Rotation())
sketch16.addGeometry(Part.Circle(V(17.6, 26.9, 0), V(0, 0, 1), 1), False)
sketch16.addConstraint([
    Sketcher.Constraint("Diameter", 0, Q("2 mm")),
    Sketcher.Constraint("DistanceX", -1, 1, 0, 3, Q("17.55 mm")),
    Sketcher.Constraint("DistanceY", -1, 1, 0, 3, Q("26.870117 mm")),
])
pocket9 = body.newObject("PartDesign::Pocket", "Pocket008")
pocket9.Profile = sketch16
pocket9.Length = 8

# Sketch on YZ plane
sketch17 = body.newObject("Sketcher::SketchObject", "Sketch016")
sketch17.AttachmentSupport = (doc.getObject("YZ_Plane"), [""])
sketch17.MapMode = "FlatFace"
sketch17.AttachmentOffset = App.Placement(V(0, 0, 8.1), App.Rotation())
sketch17.addGeometry([
    Part.LineSegment(V(19.737444, 5.147845, 0), V(15.506266, 5.147845, 0)),
    Part.LineSegment(V(15.506266, 5.147845, 0), V(15.506266, 8.447845, 0)),
    Part.LineSegment(V(15.506266, 8.447845, 0), V(23.968622, 8.447845, 0)),
    Part.BSplineCurve([V(23.968622, 8.447845, 0), V(23.968622, 5.147845, 0), V(19.737444, 5.147845, 0)], [3, 3], [3.141592654, 4.71238898], False, 2, [1, 0.707106781, 1], False),
], False)
sketch17.addConstraint([
    Sketcher.Constraint("Block", 3),
    Sketcher.Constraint("Coincident", 0, 2, 1, 1),
    Sketcher.Constraint("Coincident", 1, 2, 2, 1),
    Sketcher.Constraint("Coincident", 2, 2, 3, 1),
    Sketcher.Constraint("Coincident", 3, 2, 0, 1),
    Sketcher.Constraint("Horizontal", 0),
    Sketcher.Constraint("Vertical", 1),
    Sketcher.Constraint("Horizontal", 2),
    Sketcher.Constraint("DistanceX", 0, 2, 0, 1, Q("4.231178 mm")),
])
pad8 = body.newObject("PartDesign::Pad", "Pad007")
pad8.Profile = sketch17
pad8.Length = 2

# Sketch on YZ plane
sketch18 = body.newObject("Sketcher::SketchObject", "Sketch017")
sketch18.AttachmentSupport = (doc.getObject("YZ_Plane"), [""])
sketch18.MapMode = "FlatFace"
sketch18.addGeometry(Part.Circle(V(18.3, 7.5, 0), V(0, 0, 1), 1.5), False)
sketch18.addConstraint([
    Sketcher.Constraint("Diameter", 0, Q("3 mm")),
    Sketcher.Constraint("DistanceX", -1, 1, 0, 3, Q("18.331805 mm")),
    Sketcher.Constraint("DistanceY", -1, 1, 0, 3, Q("7.532576 mm")),
])
pocket10 = body.newObject("PartDesign::Pocket", "Pocket009")
pocket10.Profile = sketch18
pocket10.Length = 10.1
pocket10.Reversed = True

# Sketch on YZ plane
sketch19 = body.newObject("Sketcher::SketchObject", "Sketch018")
sketch19.AttachmentSupport = (doc.getObject("YZ_Plane"), [""])
sketch19.MapMode = "FlatFace"
sketch19.AttachmentOffset = App.Placement(V(0, 0, 8.1), App.Rotation())
sketch19.addGeometry([
    Part.LineSegment(V(-46, 12, 0), V(-37, 8, 0)),  # 0
    Part.ArcOfCircle(Part.Circle(V(-38, 0, 0), V(0, 0, 1), 8), math.radians(85), math.radians(163)),  # 1
    Part.LineSegment(V(-46, 2, 0), V(-53, 2, 0)),  # 2
    Part.ArcOfCircle(Part.Circle(V(-58, 0, 0), V(0, 0, 1), 5), math.radians(29), math.radians(331)),  # 3
    Part.LineSegment(V(-53, -2, 0), V(-46, -2, 0)),  # 4
    Part.ArcOfCircle(Part.Circle(V(-38, 0, 0), V(0, 0, 1), 8), math.radians(-163), math.radians(-85)),  # 5
    Part.LineSegment(V(-37, -8, 0), V(-46, -12, 0)),  # 6
    Part.LineSegment(V(-46, -12, 0), V(-58, -12, 0)),  # 7
    Part.ArcOfCircle(Part.Circle(V(-58, 0, 0), V(0, 0, 1), 12), math.radians(90), math.radians(270)),  # 8
    Part.LineSegment(V(-58, 12, 0), V(-46, 12, 0)),  # 9
], False)
sketch19.addConstraint([
    Sketcher.Constraint("Coincident", 0, 2, 1, 1),
    Sketcher.Constraint("Coincident", 1, 2, 2, 1),
    Sketcher.Constraint("Coincident", 2, 2, 3, 1),
    Sketcher.Constraint("Coincident", 3, 2, 4, 1),
    Sketcher.Constraint("Coincident", 4, 2, 5, 1),
    Sketcher.Constraint("Coincident", 5, 2, 6, 1),
    Sketcher.Constraint("Coincident", 6, 2, 7, 1),
    Sketcher.Constraint("Tangent", 7, 2, 8, 2),
    Sketcher.Constraint("Tangent", 8, 1, 9, 1),
    Sketcher.Constraint("Coincident", 9, 2, 0, 1),
    Sketcher.Constraint("Horizontal", 2),
    Sketcher.Constraint("Horizontal", 4),
    Sketcher.Constraint("Horizontal", 7),
    Sketcher.Constraint("Horizontal", 9),
    Sketcher.Constraint("Coincident", 5, 3, 1, 3),
    Sketcher.Constraint("Coincident", 8, 3, 3, 3),
    Sketcher.Constraint("Equal", 1, 5),
    Sketcher.Constraint("Symmetric", 2, 2, 3, 2, -1),
    Sketcher.Constraint("Symmetric", 0, 2, 5, 2, -1),
    Sketcher.Constraint("Vertical", 4, 2, 6, 2),
    Sketcher.Constraint("Vertical", 6, 2, 9, 2),
    Sketcher.Constraint("Radius", 8, Q("12 mm")),
    Sketcher.Constraint("DistanceX", 7, 2, 7, 1, Q("12 mm")),
    Sketcher.Constraint("Radius", 3, Q("5.15 mm")),
    Sketcher.Constraint("DistanceX", 3, 3, 1, 3, Q("20 mm")),
    Sketcher.Constraint("DistanceY", 3, 2, 2, 2, Q("5 mm")),
    Sketcher.Constraint("Distance", 0, Q("9.5 mm")),
    Sketcher.Constraint("DistanceX", 0, 2, -1, 1, Q("36.960652 mm")),
])
pocket11 = body.newObject("PartDesign::Pocket", "Pocket010")
pocket11.Profile = sketch19
pocket11.Type = "TwoLengths"
pocket11.Length = 8.1
pocket11.Length2 = 2

# Sketch on YZ plane
sketch20 = body.newObject("Sketcher::SketchObject", "Sketch019")
sketch20.AttachmentSupport = (doc.getObject("YZ_Plane"), [""])
sketch20.MapMode = "FlatFace"
sketch20.AttachmentOffset = App.Placement(V(0, 0, 20), App.Rotation())
sketch20.addGeometry([
    Part.LineSegment(V(15.1, 10.3, 0), V(15.1, 7.2, 0)),  # 0
    Part.ArcOfCircle(Part.Circle(V(12, 7.2, 0), V(0, 0, 1), 3.1), math.radians(-78), math.radians(0)),  # 1
    Part.ArcOfCircle(Part.Circle(V(-23, 205.1, 0), V(0, 0, 1), 204), math.radians(-94.15), math.radians(-79.94)),  # 2
    Part.LineSegment(V(-37.7, 1.6, 0), V(-37.7, -0.4, 0)),  # 3
    Part.ArcOfCircle(Part.Circle(V(-23, 205.1, 0), V(0, 0, 1), 206), math.radians(-94.11), math.radians(-79.93)),  # 4
    Part.ArcOfCircle(Part.Circle(V(12, 7.2, 0), V(0, 0, 1), 5.1), math.radians(-78), math.radians(0)),  # 5
    Part.LineSegment(V(17.1, 7.2, 0), V(17.1, 10.3, 0)),  # 6
    Part.LineSegment(V(17.1, 10.3, 0), V(15.1, 10.3, 0)),  # 7
], False)
sketch20.addConstraint([
    Sketcher.Constraint("Tangent", 0, 2, 1, 2),
    Sketcher.Constraint("Coincident", 1, 1, 2, 2),
    Sketcher.Constraint("Coincident", 2, 1, 3, 1),
    Sketcher.Constraint("Coincident", 3, 2, 4, 1),
    Sketcher.Constraint("Coincident", 4, 2, 5, 1),
    Sketcher.Constraint("Tangent", 5, 2, 6, 1),
    Sketcher.Constraint("Coincident", 6, 2, 7, 1),
    Sketcher.Constraint("Coincident", 7, 2, 0, 1),
    Sketcher.Constraint("Vertical", 0),
    Sketcher.Constraint("Vertical", 3),
    Sketcher.Constraint("Vertical", 6),
    Sketcher.Constraint("Horizontal", 7),
    Sketcher.Constraint("Coincident", 4, 3, 2, 3),
    Sketcher.Constraint("Coincident", 5, 3, 1, 3),
    Sketcher.Constraint("Radius", 2, Q("204 mm")),
    Sketcher.Constraint("Radius", 4, Q("206 mm")),
    Sketcher.Constraint("DistanceX", 7, 2, 7, 1, Q("2 mm")),
    Sketcher.Constraint("Radius", 1, Q("3.074125 mm")),
    Sketcher.Constraint("DistanceY", 3, 2, 1, 3, Q("7.606999 mm")),
    Sketcher.Constraint("DistanceY", 0, 2, 0, 1, Q("3.073829 mm")),
    Sketcher.Constraint("DistanceX", -1, 1, 1, 3, Q("12.01128 mm")),
    Sketcher.Constraint("DistanceY", -1, 1, 1, 3, Q("7.209968 mm")),
    Sketcher.Constraint("DistanceY", -1, 1, 1, 1, Q("4.206612 mm")),
    Sketcher.Constraint("DistanceX", 2, 1, 0, 2, Q("52.815358 mm")),
])
pocket12 = body.newObject("PartDesign::Pocket", "Pocket011")
pocket12.Profile = sketch20
pocket12.Length = 2

# Sketch on YZ plane
sketch21 = body.newObject("Sketcher::SketchObject", "Sketch020")
sketch21.AttachmentSupport = (doc.getObject("YZ_Plane"), [""])
sketch21.MapMode = "FlatFace"
sketch21.AttachmentOffset = App.Placement(V(0, 0, 20), App.Rotation())
sketch21.addGeometry([
    Part.LineSegment(V(-37.73, -8.14, 0), V(-37.73, -8, 0)),  # 0
    Part.ArcOfCircle(Part.Circle(V(-37.73, 0, 0), V(0, 0, 1), 8), math.radians(90), math.radians(270)),  # 1
    Part.LineSegment(V(-37.73, 8, 0), V(-37.73, 15.75, 0)),  # 2
    Part.LineSegment(V(-37.73, 15.75, 0), V(-45.94, 15.75, 0)),  # 3
    Part.LineSegment(V(-45.94, 15.75, 0), V(-45.94, -8.14, 0)),  # 4
    Part.LineSegment(V(-45.94, -8.14, 0), V(-37.73, -8.14, 0)),  # 5
], False)
sketch21.addConstraint([
    Sketcher.Constraint("Coincident", 0, 2, 1, 2),
    Sketcher.Constraint("Coincident", 1, 1, 2, 1),
    Sketcher.Constraint("Coincident", 2, 2, 3, 1),
    Sketcher.Constraint("Coincident", 3, 2, 4, 1),
    Sketcher.Constraint("Coincident", 4, 2, 5, 1),
    Sketcher.Constraint("Coincident", 5, 2, 0, 1),
    Sketcher.Constraint("Vertical", 0),
    Sketcher.Constraint("Vertical", 2),
    Sketcher.Constraint("Horizontal", 3),
    Sketcher.Constraint("Vertical", 4),
    Sketcher.Constraint("Horizontal", 5),
    Sketcher.Constraint("Symmetric", 0, 2, 1, 1, -1),
    Sketcher.Constraint("Vertical", 1, 3, 0, 2),
    Sketcher.Constraint("Radius", 1, Q("8 mm")),
    Sketcher.Constraint("DistanceY", 4, 2, 4, 1, Q("23.895231 mm")),
    Sketcher.Constraint("DistanceX", 3, 2, -1, 1, Q("45.937499 mm")),
    Sketcher.Constraint("DistanceX", 3, 2, 3, 1, Q("8.207616 mm")),
    Sketcher.Constraint("DistanceY", 0, 1, 0, 2, Q("0.140337 mm")),
])
pocket13 = body.newObject("PartDesign::Pocket", "Pocket012")
pocket13.Profile = sketch21
pocket13.Length = 5.2

# Sketch on XY plane
sketch22 = body.newObject("Sketcher::SketchObject", "Sketch021")
sketch22.AttachmentSupport = (doc.getObject("XY_Plane"), [""])
sketch22.MapMode = "FlatFace"
sketch22.AttachmentOffset = App.Placement(V(0, 0, 10.283797), App.Rotation())
sketch22.addGeometry([
    Part.LineSegment(V(13, 32, 0), V(13, 12, 0)),
    Part.LineSegment(V(13, 12, 0), V(20, 12, 0)),
    Part.LineSegment(V(20, 12, 0), V(20, 32, 0)),
    Part.LineSegment(V(20, 32, 0), V(13, 32, 0)),
], False)
sketch22.addConstraint([
    Sketcher.Constraint("Coincident", 0, 2, 1, 1),
    Sketcher.Constraint("Coincident", 1, 2, 2, 1),
    Sketcher.Constraint("Coincident", 2, 2, 3, 1),
    Sketcher.Constraint("Coincident", 3, 2, 0, 1),
    Sketcher.Constraint("Vertical", 0),
    Sketcher.Constraint("Horizontal", 1),
    Sketcher.Constraint("Vertical", 2),
    Sketcher.Constraint("Horizontal", 3),
    Sketcher.Constraint("DistanceY", 0, 2, 0, 1, Q("20 mm")),
    Sketcher.Constraint("DistanceX", 1, 1, 1, 2, Q("6.9 mm")),
    Sketcher.Constraint("DistanceX", -1, 1, 1, 2, Q("20 mm")),
    Sketcher.Constraint("DistanceY", -1, 1, 2, 2, Q("31.968622 mm")),
])
pocket14 = body.newObject("PartDesign::Pocket", "Pocket013")
pocket14.Profile = sketch22
pocket14.Length = 0.283797

# Sketch on XZ plane
sketch23 = body.newObject("Sketcher::SketchObject", "Sketch022")
sketch23.AttachmentSupport = (doc.getObject("XZ_Plane"), [""])
sketch23.MapMode = "FlatFace"
sketch23.AttachmentOffset = App.Placement(V(0, 0, -23.968622), App.Rotation())
sketch23.addGeometry([
    Part.LineSegment(V(8.1, 10, 0), V(8.1, 21, 0)),
    Part.LineSegment(V(8.1, 21, 0), V(10.1, 21, 0)),
    Part.LineSegment(V(10.1, 21, 0), V(10.1, 10, 0)),
    Part.LineSegment(V(10.1, 10, 0), V(8.1, 10, 0)),
], False)
sketch23.addConstraint([
    Sketcher.Constraint("Coincident", 0, 2, 1, 1),
    Sketcher.Constraint("Coincident", 1, 2, 2, 1),
    Sketcher.Constraint("Coincident", 2, 2, 3, 1),
    Sketcher.Constraint("Coincident", 3, 2, 0, 1),
    Sketcher.Constraint("Vertical", 0),
    Sketcher.Constraint("Horizontal", 1),
    Sketcher.Constraint("Vertical", 2),
    Sketcher.Constraint("Horizontal", 3),
    Sketcher.Constraint("DistanceX", 1, 1, 1, 2, Q("2 mm")),
    Sketcher.Constraint("DistanceY", -1, 1, 2, 2, Q("10 mm")),
    Sketcher.Constraint("DistanceX", -1, 1, 0, 2, Q("8.1 mm")),
    Sketcher.Constraint("DistanceY", 0, 1, 0, 2, Q("11.022421 mm")),
])
pocket15 = body.newObject("PartDesign::Pocket", "Pocket014")
pocket15.Profile = sketch23
pocket15.Length = 12
pocket15.Reversed = True

# Sketch on YZ plane
sketch24 = body.newObject("Sketcher::SketchObject", "Sketch023")
sketch24.AttachmentSupport = (doc.getObject("YZ_Plane"), [""])
sketch24.MapMode = "FlatFace"
sketch24.AttachmentOffset = App.Placement(V(0, 0, 8.1), App.Rotation())
sketch24.addGeometry([
    Part.LineSegment(V(14, -8, 0), V(5, -8, 0)),
    Part.LineSegment(V(5, -8, 0), V(16, 5, 0)),
    Part.LineSegment(V(16, 5, 0), V(14, -8, 0)),
], False)
sketch24.addConstraint([
    Sketcher.Constraint("Coincident", 0, 2, 1, 1),
    Sketcher.Constraint("Coincident", 1, 2, 2, 1),
    Sketcher.Constraint("Coincident", 2, 2, 0, 1),
    Sketcher.Constraint("Horizontal", 0),
    Sketcher.Constraint("DistanceX", 0, 2, 0, 1, Q("8.369049 mm")),
    Sketcher.Constraint("DistanceX", -1, 1, 0, 2, Q("5.401068 mm")),
    Sketcher.Constraint("DistanceY", 0, 2, -1, 1, Q("8.473151 mm")),
    Sketcher.Constraint("DistanceX", 2, 2, 1, 2, Q("1.736148 mm")),
    Sketcher.Constraint("Distance", 1, Q("16.960146 mm")),
])
pocket16 = body.newObject("PartDesign::Pocket", "Pocket015")
pocket16.Profile = sketch24
pocket16.Length = 7
pocket16.Reversed = True

doc.recompute()
